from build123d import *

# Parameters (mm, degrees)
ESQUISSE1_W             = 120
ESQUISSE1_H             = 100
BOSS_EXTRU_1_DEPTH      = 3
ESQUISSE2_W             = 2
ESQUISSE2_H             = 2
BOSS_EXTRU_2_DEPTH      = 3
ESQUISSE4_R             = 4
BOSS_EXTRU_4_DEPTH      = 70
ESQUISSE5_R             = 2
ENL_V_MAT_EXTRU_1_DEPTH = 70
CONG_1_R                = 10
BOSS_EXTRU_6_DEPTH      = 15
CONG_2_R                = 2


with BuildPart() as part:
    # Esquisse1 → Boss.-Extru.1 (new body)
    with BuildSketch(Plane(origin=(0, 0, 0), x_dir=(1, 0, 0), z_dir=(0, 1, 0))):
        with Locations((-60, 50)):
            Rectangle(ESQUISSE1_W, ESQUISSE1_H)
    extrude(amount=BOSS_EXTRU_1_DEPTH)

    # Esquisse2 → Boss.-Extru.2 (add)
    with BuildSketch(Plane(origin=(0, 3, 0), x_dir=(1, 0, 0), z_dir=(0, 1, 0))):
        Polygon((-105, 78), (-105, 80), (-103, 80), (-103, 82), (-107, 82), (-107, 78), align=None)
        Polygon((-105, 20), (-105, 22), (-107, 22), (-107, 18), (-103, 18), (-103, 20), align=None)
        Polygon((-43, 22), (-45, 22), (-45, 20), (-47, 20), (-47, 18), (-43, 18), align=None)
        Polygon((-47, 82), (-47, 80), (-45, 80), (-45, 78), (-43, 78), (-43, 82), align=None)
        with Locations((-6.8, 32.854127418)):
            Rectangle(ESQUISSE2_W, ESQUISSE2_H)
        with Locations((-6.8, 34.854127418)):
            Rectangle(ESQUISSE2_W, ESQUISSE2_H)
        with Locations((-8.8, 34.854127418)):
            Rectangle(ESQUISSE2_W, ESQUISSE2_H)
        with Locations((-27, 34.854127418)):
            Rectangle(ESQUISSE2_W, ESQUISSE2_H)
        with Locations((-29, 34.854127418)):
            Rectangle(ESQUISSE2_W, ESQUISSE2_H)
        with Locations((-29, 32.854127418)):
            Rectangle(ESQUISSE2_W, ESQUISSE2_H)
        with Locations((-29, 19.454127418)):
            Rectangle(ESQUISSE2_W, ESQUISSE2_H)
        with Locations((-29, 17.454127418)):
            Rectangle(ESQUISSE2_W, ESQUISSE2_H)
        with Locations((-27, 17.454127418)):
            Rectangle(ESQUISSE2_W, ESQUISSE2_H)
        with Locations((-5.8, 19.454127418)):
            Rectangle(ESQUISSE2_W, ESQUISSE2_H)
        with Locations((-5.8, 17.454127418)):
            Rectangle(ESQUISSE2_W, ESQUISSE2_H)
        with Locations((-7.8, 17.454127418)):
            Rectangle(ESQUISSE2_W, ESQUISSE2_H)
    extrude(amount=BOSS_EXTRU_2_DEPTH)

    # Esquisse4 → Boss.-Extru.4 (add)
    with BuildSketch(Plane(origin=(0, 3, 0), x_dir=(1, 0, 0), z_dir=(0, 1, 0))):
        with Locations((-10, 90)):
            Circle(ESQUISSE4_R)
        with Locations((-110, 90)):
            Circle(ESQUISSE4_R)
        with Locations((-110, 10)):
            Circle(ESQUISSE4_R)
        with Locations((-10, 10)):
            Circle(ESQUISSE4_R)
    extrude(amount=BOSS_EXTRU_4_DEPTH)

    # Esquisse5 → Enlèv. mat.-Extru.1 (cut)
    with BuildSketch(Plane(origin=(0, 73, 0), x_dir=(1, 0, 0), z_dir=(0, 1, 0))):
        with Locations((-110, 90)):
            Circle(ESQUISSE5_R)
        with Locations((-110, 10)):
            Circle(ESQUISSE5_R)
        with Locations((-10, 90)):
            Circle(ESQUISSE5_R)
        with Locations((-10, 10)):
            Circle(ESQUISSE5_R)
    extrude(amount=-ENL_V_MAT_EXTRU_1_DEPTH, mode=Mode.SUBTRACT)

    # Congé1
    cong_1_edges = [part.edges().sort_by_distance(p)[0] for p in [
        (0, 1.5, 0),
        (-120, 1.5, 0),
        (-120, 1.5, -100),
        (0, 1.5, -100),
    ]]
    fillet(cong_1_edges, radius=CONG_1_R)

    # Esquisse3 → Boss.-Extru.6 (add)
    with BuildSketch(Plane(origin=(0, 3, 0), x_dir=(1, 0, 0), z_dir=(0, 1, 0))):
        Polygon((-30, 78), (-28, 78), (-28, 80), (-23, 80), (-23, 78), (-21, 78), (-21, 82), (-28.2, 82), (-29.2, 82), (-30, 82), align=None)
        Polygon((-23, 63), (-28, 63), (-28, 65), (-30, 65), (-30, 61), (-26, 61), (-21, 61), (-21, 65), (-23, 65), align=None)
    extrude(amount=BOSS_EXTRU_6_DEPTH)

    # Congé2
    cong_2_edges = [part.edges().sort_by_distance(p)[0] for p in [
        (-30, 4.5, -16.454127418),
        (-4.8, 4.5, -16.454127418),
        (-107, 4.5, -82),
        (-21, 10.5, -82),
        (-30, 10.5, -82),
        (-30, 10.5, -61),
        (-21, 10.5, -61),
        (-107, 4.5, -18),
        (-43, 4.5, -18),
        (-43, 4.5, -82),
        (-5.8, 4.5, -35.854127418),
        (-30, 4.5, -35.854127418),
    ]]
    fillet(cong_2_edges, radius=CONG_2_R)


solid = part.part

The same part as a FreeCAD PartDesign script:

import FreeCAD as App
import Part
import Sketcher

V = App.Vector


def edges_at(feature, points):
    """Names of the edges that pass closest to the given points."""
    edges = feature.Shape.Edges
    near = lambda p: min(range(len(edges)), key=lambda i: edges[i].distToShape(Part.Vertex(*p))[0])
    return sorted({f"Edge{near(p) + 1}" for p in points})

doc = App.newDocument("Part")
params = doc.addObject("Spreadsheet::Sheet", "Params")
for row, (alias, value) in enumerate([
    ("sketch1_width", "120 mm"),
    ("sketch1_height", "100 mm"),
    ("pad1_length", "3 mm"),
    ("sketch2_width", "2 mm"),
    ("pad2_length", "3 mm"),
    ("sketch3_diameter", "8 mm"),
    ("pad3_length", "70 mm"),
    ("sketch4_diameter", "4 mm"),
    ("pocket1_length", "70 mm"),
    ("fillet_radius", "10 mm"),
    ("sketch5_width", "2 mm"),
    ("sketch5_width2", "5 mm"),
    ("sketch5_height", "4 mm"),
    ("pad4_length", "15 mm"),
    ("fillet2_radius", "2 mm"),
], start=1):
    params.set(f"A{row}", alias)
    params.set(f"B{row}", "=" + value)
    params.setAlias(f"B{row}", alias)

body = doc.addObject("PartDesign::Body", "Body")

# Sketch on XZ plane
sketch1 = body.newObject("Sketcher::SketchObject", "Sketch")
sketch1.AttachmentSupport = (doc.getObject("XZ_Plane"), [""])
sketch1.MapMode = "FlatFace"
sketch1.addGeometry([
    Part.LineSegment(V(-120, -100, 0), V(-120, 0, 0)),
    Part.LineSegment(V(-120, 0, 0), V(0, 0, 0)),
    Part.LineSegment(V(0, 0, 0), V(0, -100, 0)),
    Part.LineSegment(V(0, -100, 0), V(-120, -100, 0)),
], False)
sketch1.addConstraint([
    Sketcher.Constraint("Coincident", 0, 2, 1, 1),
    Sketcher.Constraint("Coincident", 1, 2, 2, 1),
    Sketcher.Constraint("Coincident", 2, 2, 3, 1),
    Sketcher.Constraint("Coincident", 3, 2, 0, 1),
    Sketcher.Constraint("Vertical", 0),
    Sketcher.Constraint("Horizontal", 1),
    Sketcher.Constraint("Vertical", 2),
    Sketcher.Constraint("Horizontal", 3),
    Sketcher.Constraint("Coincident", 1, 2, -1, 1),
    Sketcher.Constraint("DistanceX", 1, 1, 1, 2, 120.0),
    Sketcher.Constraint("DistanceY", 0, 1, 0, 2, 100.0),
])
sketch1.setExpression("Constraints[9]", "Params.sketch1_width")
sketch1.setExpression("Constraints[10]", "Params.sketch1_height")
pad1 = body.newObject("PartDesign::Pad", "Pad")
pad1.Profile = sketch1
pad1.setExpression("Length", "Params.pad1_length")
pad1.Reversed = True

# Sketch on XZ plane
sketch2 = body.newObject("Sketcher::SketchObject", "Sketch001")
sketch2.AttachmentSupport = (doc.getObject("XZ_Plane"), [""])
sketch2.MapMode = "FlatFace"
sketch2.AttachmentOffset = App.Placement(V(0, 0, -3), App.Rotation())
sketch2.addGeometry([
    Part.LineSegment(V(-105, -78, 0), V(-105, -80, 0)),  # 0
    Part.LineSegment(V(-105, -80, 0), V(-103, -80, 0)),  # 1
    Part.LineSegment(V(-103, -80, 0), V(-103, -82, 0)),  # 2
    Part.LineSegment(V(-103, -82, 0), V(-107, -82, 0)),  # 3
    Part.LineSegment(V(-107, -82, 0), V(-107, -78, 0)),  # 4
    Part.LineSegment(V(-107, -78, 0), V(-105, -78, 0)),  # 5
    Part.LineSegment(V(-105, -20, 0), V(-105, -22, 0)),  # 6
    Part.LineSegment(V(-105, -22, 0), V(-107, -22, 0)),  # 7
    Part.LineSegment(V(-107, -22, 0), V(-107, -18, 0)),  # 8
    Part.LineSegment(V(-107, -18, 0), V(-103, -18, 0)),  # 9
    Part.LineSegment(V(-103, -18, 0), V(-103, -20, 0)),  # 10
    Part.LineSegment(V(-103, -20, 0), V(-105, -20, 0)),  # 11
    Part.LineSegment(V(-43, -22, 0), V(-45, -22, 0)),  # 12
    Part.LineSegment(V(-45, -22, 0), V(-45, -20, 0)),  # 13
    Part.LineSegment(V(-45, -20, 0), V(-47, -20, 0)),  # 14
    Part.LineSegment(V(-47, -20, 0), V(-47, -18, 0)),  # 15
    Part.LineSegment(V(-47, -18, 0), V(-43, -18, 0)),  # 16
    Part.LineSegment(V(-43, -18, 0), V(-43, -22, 0)),  # 17
    Part.LineSegment(V(-47, -82, 0), V(-47, -80, 0)),  # 18
    Part.LineSegment(V(-47, -80, 0), V(-45, -80, 0)),  # 19
    Part.LineSegment(V(-45, -80, 0), V(-45, -78, 0)),  # 20
    Part.LineSegment(V(-45, -78, 0), V(-43, -78, 0)),  # 21
    Part.LineSegment(V(-43, -78, 0), V(-43, -82, 0)),  # 22
    Part.LineSegment(V(-43, -82, 0), V(-47, -82, 0)),  # 23
    Part.LineSegment(V(-7.8, -31.9, 0), V(-5.8, -31.9, 0)),  # 24
    Part.LineSegment(V(-5.8, -31.9, 0), V(-5.8, -35.9, 0)),  # 25
    Part.LineSegment(V(-5.8, -35.9, 0), V(-9.8, -35.9, 0)),  # 26
    Part.LineSegment(V(-9.8, -35.9, 0), V(-9.8, -33.9, 0)),  # 27
    Part.LineSegment(V(-9.8, -33.9, 0), V(-7.8, -33.9, 0)),  # 28
    Part.LineSegment(V(-7.8, -33.9, 0), V(-7.8, -31.9, 0)),  # 29
    Part.LineSegment(V(-26, -33.9, 0), V(-26, -35.9, 0)),  # 30
    Part.LineSegment(V(-26, -35.9, 0), V(-30, -35.9, 0)),  # 31
    Part.LineSegment(V(-30, -35.9, 0), V(-30, -31.9, 0)),  # 32
    Part.LineSegment(V(-30, -31.9, 0), V(-28, -31.9, 0)),  # 33
    Part.LineSegment(V(-28, -31.9, 0), V(-28, -33.9, 0)),  # 34
    Part.LineSegment(V(-28, -33.9, 0), V(-26, -33.9, 0)),  # 35
    Part.LineSegment(V(-30, -20.5, 0), V(-30, -16.5, 0)),  # 36
    Part.LineSegment(V(-30, -16.5, 0), V(-26, -16.5, 0)),  # 37
    Part.LineSegment(V(-26, -16.5, 0), V(-26, -18.5, 0)),  # 38
    Part.LineSegment(V(-26, -18.5, 0), V(-28, -18.5, 0)),  # 39
    Part.LineSegment(V(-28, -18.5, 0), V(-28, -20.5, 0)),  # 40
    Part.LineSegment(V(-28, -20.5, 0), V(-30, -20.5, 0)),  # 41
    Part.LineSegment(V(-6.8, -20.5, 0), V(-6.8, -18.5, 0)),  # 42
    Part.LineSegment(V(-6.8, -18.5, 0), V(-8.8, -18.5, 0)),  # 43
    Part.LineSegment(V(-8.8, -18.5, 0), V(-8.8, -16.5, 0)),  # 44
    Part.LineSegment(V(-8.8, -16.5, 0), V(-4.8, -16.5, 0)),  # 45
    Part.LineSegment(V(-4.8, -16.5, 0), V(-4.8, -20.5, 0)),  # 46
    Part.LineSegment(V(-4.8, -20.5, 0), V(-6.8, -20.5, 0)),  # 47
], False)
sketch2.addConstraint([
    Sketcher.Constraint("Coincident", 0, 2, 1, 1),
    Sketcher.Constraint("Coincident", 1, 2, 2, 1),
    Sketcher.Constraint("Coincident", 2, 2, 3, 1),
    Sketcher.Constraint("Coincident", 3, 2, 4, 1),
    Sketcher.Constraint("Coincident", 4, 2, 5, 1),
    Sketcher.Constraint("Coincident", 5, 2, 0, 1),
    Sketcher.Constraint("Coincident", 6, 2, 7, 1),
    Sketcher.Constraint("Coincident", 7, 2, 8, 1),
    Sketcher.Constraint("Coincident", 8, 2, 9, 1),
    Sketcher.Constraint("Coincident", 9, 2, 10, 1),
    Sketcher.Constraint("Coincident", 10, 2, 11, 1),
    Sketcher.Constraint("Coincident", 11, 2, 6, 1),
    Sketcher.Constraint("Coincident", 12, 2, 13, 1),
    Sketcher.Constraint("Coincident", 13, 2, 14, 1),
    Sketcher.Constraint("Coincident", 14, 2, 15, 1),
    Sketcher.Constraint("Coincident", 15, 2, 16, 1),
    Sketcher.Constraint("Coincident", 16, 2, 17, 1),
    Sketcher.Constraint("Coincident", 17, 2, 12, 1),
    Sketcher.Constraint("Coincident", 18, 2, 19, 1),
    Sketcher.Constraint("Coincident", 19, 2, 20, 1),
    Sketcher.Constraint("Coincident", 20, 2, 21, 1),
    Sketcher.Constraint("Coincident", 21, 2, 22, 1),
    Sketcher.Constraint("Coincident", 22, 2, 23, 1),
    Sketcher.Constraint("Coincident", 23, 2, 18, 1),
    Sketcher.Constraint("Coincident", 24, 2, 25, 1),
    Sketcher.Constraint("Coincident", 25, 2, 26, 1),
    Sketcher.Constraint("Coincident", 26, 2, 27, 1),
    Sketcher.Constraint("Coincident", 27, 2, 28, 1),
    Sketcher.Constraint("Coincident", 28, 2, 29, 1),
    Sketcher.Constraint("Coincident", 29, 2, 24, 1),
    Sketcher.Constraint("Coincident", 30, 2, 31, 1),
    Sketcher.Constraint("Coincident", 31, 2, 32, 1),
    Sketcher.Constraint("Coincident", 32, 2, 33, 1),
    Sketcher.Constraint("Coincident", 33, 2, 34, 1),
    Sketcher.Constraint("Coincident", 34, 2, 35, 1),
    Sketcher.Constraint("Coincident", 35, 2, 30, 1),
    Sketcher.Constraint("Coincident", 36, 2, 37, 1),
    Sketcher.Constraint("Coincident", 37, 2, 38, 1),
    Sketcher.Constraint("Coincident", 38, 2, 39, 1),
    Sketcher.Constraint("Coincident", 39, 2, 40, 1),
    Sketcher.Constraint("Coincident", 40, 2, 41, 1),
    Sketcher.Constraint("Coincident", 41, 2, 36, 1),
    Sketcher.Constraint("Coincident", 42, 2, 43, 1),
    Sketcher.Constraint("Coincident", 43, 2, 44, 1),
    Sketcher.Constraint("Coincident", 44, 2, 45, 1),
    Sketcher.Constraint("Coincident", 45, 2, 46, 1),
    Sketcher.Constraint("Coincident", 46, 2, 47, 1),
    Sketcher.Constraint("Coincident", 47, 2, 42, 1),
    Sketcher.Constraint("Vertical", 0),
    Sketcher.Constraint("Horizontal", 1),
    Sketcher.Constraint("Vertical", 2),
    Sketcher.Constraint("Horizontal", 3),
    Sketcher.Constraint("Vertical", 4),
    Sketcher.Constraint("Horizontal", 5),
    Sketcher.Constraint("Vertical", 6),
    Sketcher.Constraint("Horizontal", 7),
    Sketcher.Constraint("Vertical", 8),
    Sketcher.Constraint("Horizontal", 9),
    Sketcher.Constraint("Vertical", 10),
    Sketcher.Constraint("Horizontal", 11),
    Sketcher.Constraint("Horizontal", 12),
    Sketcher.Constraint("Vertical", 13),
    Sketcher.Constraint("Horizontal", 14),
    Sketcher.Constraint("Vertical", 15),
    Sketcher.Constraint("Horizontal", 16),
    Sketcher.Constraint("Vertical", 17),
    Sketcher.Constraint("Vertical", 18),
    Sketcher.Constraint("Horizontal", 19),
    Sketcher.Constraint("Vertical", 20),
    Sketcher.Constraint("Horizontal", 21),
    Sketcher.Constraint("Vertical", 22),
    Sketcher.Constraint("Horizontal", 23),
    Sketcher.Constraint("Horizontal", 24),
    Sketcher.Constraint("Vertical", 25),
    Sketcher.Constraint("Horizontal", 26),
    Sketcher.Constraint("Vertical", 27),
    Sketcher.Constraint("Horizontal", 28),
    Sketcher.Constraint("Vertical", 29),
    Sketcher.Constraint("Vertical", 30),
    Sketcher.Constraint("Horizontal", 31),
    Sketcher.Constraint("Vertical", 32),
    Sketcher.Constraint("Horizontal", 33),
    Sketcher.Constraint("Vertical", 34),
    Sketcher.Constraint("Horizontal", 35),
    Sketcher.Constraint("Vertical", 36),
    Sketcher.Constraint("Horizontal", 37),
    Sketcher.Constraint("Vertical", 38),
    Sketcher.Constraint("Horizontal", 39),
    Sketcher.Constraint("Vertical", 40),
    Sketcher.Constraint("Horizontal", 41),
    Sketcher.Constraint("Vertical", 42),
    Sketcher.Constraint("Horizontal", 43),
    Sketcher.Constraint("Vertical", 44),
    Sketcher.Constraint("Horizontal", 45),
    Sketcher.Constraint("Vertical", 46),
    Sketcher.Constraint("Horizontal", 47),
    Sketcher.Constraint("Horizontal", 7, 2, 12, 2),
    Sketcher.Constraint("Horizontal", 11, 2, 13, 2),
    Sketcher.Constraint("Horizontal", 9, 2, 15, 2),
    Sketcher.Constraint("Horizontal", 1, 2, 18, 2),
    Sketcher.Constraint("Horizontal", 5, 2, 20, 2),
    Sketcher.Constraint("Horizontal", 3, 2, 22, 2),
    Sketcher.Constraint("Horizontal", 26, 2, 30, 2),
    Sketcher.Constraint("Horizontal", 29, 2, 32, 2),
    Sketcher.Constraint("Horizontal", 28, 2, 34, 2),
    Sketcher.Constraint("Horizontal", 39, 2, 42, 2),
    Sketcher.Constraint("Horizontal", 37, 2, 44, 2),
    Sketcher.Constraint("Horizontal", 41, 2, 46, 2),
    Sketcher.Constraint("Vertical", 5, 2, 6, 2),
    Sketcher.Constraint("Vertical", 4, 2, 7, 2),
    Sketcher.Constraint("Vertical", 2, 2, 9, 2),
    Sketcher.Constraint("Vertical", 15, 2, 18, 2),
    Sketcher.Constraint("Vertical", 13, 2, 19, 2),
    Sketcher.Constraint("Vertical", 17, 2, 21, 2),
    Sketcher.Constraint("Vertical", 32, 2, 36, 2),
    Sketcher.Constraint("Vertical", 35, 2, 37, 2),
    Sketcher.Constraint("Vertical", 34, 2, 39, 2),
    Sketcher.Constraint("Equal", 1, 5),
    Sketcher.Constraint("Equal", 11, 12),
    Sketcher.Constraint("Equal", 12, 14),
    Sketcher.Constraint("Equal", 21, 24),
    Sketcher.Constraint("Equal", 23, 26),
    Sketcher.Constraint("Equal", 26, 31),
    Sketcher.Constraint("Equal", 28, 33),
    Sketcher.Constraint("Equal", 41, 43),
    Sketcher.Constraint("Equal", 37, 45),
    Sketcher.Constraint("Equal", 47, 0),
    Sketcher.Constraint("Equal", 0, 2),
    Sketcher.Constraint("Equal", 2, 6),
    Sketcher.Constraint("Equal", 4, 8),
    Sketcher.Constraint("Equal", 22, 25),
    Sketcher.Constraint("Equal", 20, 27),
    Sketcher.Constraint("Equal", 32, 36),
    Sketcher.Constraint("Equal", 34, 38),
    Sketcher.Constraint("DistanceX", 1, 1, 1, 2, 2.0),
    Sketcher.Constraint("DistanceX", 0, 2, -1, 1, 105.0),
    Sketcher.Constraint("DistanceY", 0, 2, -1, 1, 80.0),
    Sketcher.Constraint("DistanceY", 6, 2, -1, 1, 22.0),
    Sketcher.Constraint("DistanceX", 12, 2, -1, 1, 45.0),
    Sketcher.Constraint("DistanceX", 30, 2, -1, 1, 26.0),
    Sketcher.Constraint("DistanceX", 42, 2, 24, 2, 1.0),
    Sketcher.Constraint("DistanceX", 24, 2, -1, 1, 5.8),
    Sketcher.Constraint("DistanceY", 32, 2, 36, 2, 15.4),
    Sketcher.Constraint("DistanceY", 24, 2, -1, 1, 31.854127),
])
sketch2.setExpression("Constraints[134]", "Params.sketch2_width")
pad2 = body.newObject("PartDesign::Pad", "Pad001")
pad2.Profile = sketch2
pad2.setExpression("Length", "Params.pad2_length")
pad2.Reversed = True

# Sketch on XZ plane
sketch3 = body.newObject("Sketcher::SketchObject", "Sketch002")
sketch3.AttachmentSupport = (doc.getObject("XZ_Plane"), [""])
sketch3.MapMode = "FlatFace"
sketch3.AttachmentOffset = App.Placement(V(0, 0, -3), App.Rotation())
sketch3.addGeometry([
    Part.Circle(V(-10, -90, 0), V(0, 0, 1), 4),
    Part.Circle(V(-110, -90, 0), V(0, 0, 1), 4),
    Part.Circle(V(-110, -10, 0), V(0, 0, 1), 4),
    Part.Circle(V(-10, -10, 0), V(0, 0, 1), 4),
], False)
sketch3.addConstraint([
    Sketcher.Constraint("Equal", 0, 1),
    Sketcher.Constraint("Equal", 1, 2),
    Sketcher.Constraint("Equal", 2, 3),
    Sketcher.Constraint("Horizontal", 0, 3, 1, 3),
    Sketcher.Constraint("Horizontal", 2, 3, 3, 3),
    Sketcher.Constraint("Vertical", 1, 3, 2, 3),
    Sketcher.Constraint("Vertical", 0, 3, 3, 3),
    Sketcher.Constraint("Diameter", 0, 8.0),
    Sketcher.Constraint("DistanceX", 0, 3, -1, 1, 10.0),
    Sketcher.Constraint("DistanceY", 0, 3, -1, 1, 90.0),
    Sketcher.Constraint("DistanceX", 1, 3, -1, 1, 110.0),
    Sketcher.Constraint("DistanceY", 2, 3, -1, 1, 10.0),
])
sketch3.setExpression("Constraints[7]", "Params.sketch3_diameter")
pad3 = body.newObject("PartDesign::Pad", "Pad002")
pad3.Profile = sketch3
pad3.setExpression("Length", "Params.pad3_length")
pad3.Reversed = True

# Sketch on XZ plane
sketch4 = body.newObject("Sketcher::SketchObject", "Sketch003")
sketch4.AttachmentSupport = (doc.getObject("XZ_Plane"), [""])
sketch4.MapMode = "FlatFace"
sketch4.AttachmentOffset = App.Placement(V(0, 0, -73), App.Rotation())
sketch4.addGeometry([
    Part.Circle(V(-110, -90, 0), V(0, 0, 1), 2),
    Part.Circle(V(-110, -10, 0), V(0, 0, 1), 2),
    Part.Circle(V(-10, -90, 0), V(0, 0, 1), 2),
    Part.Circle(V(-10, -10, 0), V(0, 0, 1), 2),
], False)
sketch4.addConstraint([
    Sketcher.Constraint("Equal", 0, 1),
    Sketcher.Constraint("Equal", 1, 2),
    Sketcher.Constraint("Equal", 2, 3),
    Sketcher.Constraint("Horizontal", 0, 3, 2, 3),
    Sketcher.Constraint("Horizontal", 1, 3, 3, 3),
    Sketcher.Constraint("Vertical", 0, 3, 1, 3),
    Sketcher.Constraint("Vertical", 2, 3, 3, 3),
    Sketcher.Constraint("Diameter", 0, 4.0),
    Sketcher.Constraint("DistanceX", 0, 3, -1, 1, 110.0),
    Sketcher.Constraint("DistanceY", 0, 3, -1, 1, 90.0),
    Sketcher.Constraint("DistanceY", 1, 3, -1, 1, 10.0),
    Sketcher.Constraint("DistanceX", 2, 3, -1, 1, 10.0),
])
sketch4.setExpression("Constraints[7]", "Params.sketch4_diameter")
pocket1 = body.newObject("PartDesign::Pocket", "Pocket")
pocket1.Profile = sketch4
pocket1.setExpression("Length", "Params.pocket1_length")
pocket1.Reversed = True
doc.recompute()

fillet = body.newObject("PartDesign::Fillet", "Fillet")
fillet.Base = (pocket1, edges_at(pocket1, [
    (0, 1.5, 0),
    (-120, 1.5, 0),
    (-120, 1.5, -100),
    (0, 1.5, -100),
]))
fillet.setExpression("Radius", "Params.fillet_radius")

# Sketch on XZ plane
sketch5 = body.newObject("Sketcher::SketchObject", "Sketch004")
sketch5.AttachmentSupport = (doc.getObject("XZ_Plane"), [""])
sketch5.MapMode = "FlatFace"
sketch5.AttachmentOffset = App.Placement(V(0, 0, -3), App.Rotation())
sketch5.addGeometry([
    Part.LineSegment(V(-30, -78, 0), V(-28, -78, 0)),  # 0
    Part.LineSegment(V(-28, -78, 0), V(-28, -80, 0)),  # 1
    Part.LineSegment(V(-28, -80, 0), V(-23, -80, 0)),  # 2
    Part.LineSegment(V(-23, -80, 0), V(-23, -78, 0)),  # 3
    Part.LineSegment(V(-23, -78, 0), V(-21, -78, 0)),  # 4
    Part.LineSegment(V(-21, -78, 0), V(-21, -82, 0)),  # 5
    Part.LineSegment(V(-21, -82, 0), V(-30, -82, 0)),  # 6
    Part.LineSegment(V(-30, -82, 0), V(-30, -78, 0)),  # 7
    Part.LineSegment(V(-23, -63, 0), V(-28, -63, 0)),  # 8
    Part.LineSegment(V(-28, -63, 0), V(-28, -65, 0)),  # 9
    Part.LineSegment(V(-28, -65, 0), V(-30, -65, 0)),  # 10
    Part.LineSegment(V(-30, -65, 0), V(-30, -61, 0)),  # 11
    Part.LineSegment(V(-30, -61, 0), V(-21, -61, 0)),  # 12
    Part.LineSegment(V(-21, -61, 0), V(-21, -65, 0)),  # 13
    Part.LineSegment(V(-21, -65, 0), V(-23, -65, 0)),  # 14
    Part.LineSegment(V(-23, -65, 0), V(-23, -63, 0)),  # 15
], False)
sketch5.addConstraint([
    Sketcher.Constraint("Coincident", 0, 2, 1, 1),
    Sketcher.Constraint("Coincident", 1, 2, 2, 1),
    Sketcher.Constraint("Coincident", 2, 2, 3, 1),
    Sketcher.Constraint("Coincident", 3, 2, 4, 1),
    Sketcher.Constraint("Coincident", 4, 2, 5, 1),
    Sketcher.Constraint("Coincident", 5, 2, 6, 1),
    Sketcher.Constraint("Coincident", 6, 2, 7, 1),
    Sketcher.Constraint("Coincident", 7, 2, 0, 1),
    Sketcher.Constraint("Coincident", 8, 2, 9, 1),
    Sketcher.Constraint("Coincident", 9, 2, 10, 1),
    Sketcher.Constraint("Coincident", 10, 2, 11, 1),
    Sketcher.Constraint("Coincident", 11, 2, 12, 1),
    Sketcher.Constraint("Coincident", 12, 2, 13, 1),
    Sketcher.Constraint("Coincident", 13, 2, 14, 1),
    Sketcher.Constraint("Coincident", 14, 2, 15, 1),
    Sketcher.Constraint("Coincident", 15, 2, 8, 1),
    Sketcher.Constraint("Horizontal", 0),
    Sketcher.Constraint("Vertical", 1),
    Sketcher.Constraint("Horizontal", 2),
    Sketcher.Constraint("Vertical", 3),
    Sketcher.Constraint("Horizontal", 4),
    Sketcher.Constraint("Vertical", 5),
    Sketcher.Constraint("Horizontal", 6),
    Sketcher.Constraint("Vertical", 7),
    Sketcher.Constraint("Horizontal", 8),
    Sketcher.Constraint("Vertical", 9),
    Sketcher.Constraint("Horizontal", 10),
    Sketcher.Constraint("Vertical", 11),
    Sketcher.Constraint("Horizontal", 12),
    Sketcher.Constraint("Vertical", 13),
    Sketcher.Constraint("Horizontal", 14),
    Sketcher.Constraint("Vertical", 15),
    Sketcher.Constraint("Horizontal", 0, 2, 3, 2),
    Sketcher.Constraint("Horizontal", 10, 2, 13, 2),
    Sketcher.Constraint("Vertical", 1, 2, 8, 2),
    Sketcher.Constraint("Vertical", 7, 2, 10, 2),
    Sketcher.Constraint("Vertical", 5, 2, 12, 2),
    Sketcher.Constraint("Vertical", 3, 2, 14, 2),
    Sketcher.Constraint("Equal", 0, 4),
    Sketcher.Constraint("Equal", 14, 1),
    Sketcher.Constraint("Equal", 3, 9),
    Sketcher.Constraint("Equal", 7, 11),
    Sketcher.Constraint("DistanceX", 0, 1, 0, 2, 2.0),
    Sketcher.Constraint("DistanceX", 2, 1, 2, 2, 5.0),
    Sketcher.Constraint("DistanceY", 5, 2, 5, 1, 4.0),
    Sketcher.Constraint("DistanceX", 0, 2, -1, 1, 28.0),
    Sketcher.Constraint("DistanceY", 0, 2, -1, 1, 78.0),
    Sketcher.Constraint("DistanceY", 8, 2, -1, 1, 63.0),
])
sketch5.setExpression("Constraints[42]", "Params.sketch5_width")
sketch5.setExpression("Constraints[43]", "Params.sketch5_width2")
sketch5.setExpression("Constraints[44]", "Params.sketch5_height")
pad4 = body.newObject("PartDesign::Pad", "Pad003")
pad4.Profile = sketch5
pad4.setExpression("Length", "Params.pad4_length")
pad4.Reversed = True
doc.recompute()

fillet2 = body.newObject("PartDesign::Fillet", "Fillet001")
fillet2.Base = (pad4, edges_at(pad4, [
    (-30, 4.5, -16.454),
    (-4.8, 4.5, -16.454),
    (-107, 4.5, -82),
    (-21, 10.5, -82),
    (-30, 10.5, -82),
    (-30, 10.5, -61),
    (-21, 10.5, -61),
    (-107, 4.5, -18),
    (-43, 4.5, -18),
    (-43, 4.5, -82),
    (-5.8, 4.5, -35.854),
    (-30, 4.5, -35.854),
]))
fillet2.setExpression("Radius", "Params.fillet2_radius")

doc.recompute()
